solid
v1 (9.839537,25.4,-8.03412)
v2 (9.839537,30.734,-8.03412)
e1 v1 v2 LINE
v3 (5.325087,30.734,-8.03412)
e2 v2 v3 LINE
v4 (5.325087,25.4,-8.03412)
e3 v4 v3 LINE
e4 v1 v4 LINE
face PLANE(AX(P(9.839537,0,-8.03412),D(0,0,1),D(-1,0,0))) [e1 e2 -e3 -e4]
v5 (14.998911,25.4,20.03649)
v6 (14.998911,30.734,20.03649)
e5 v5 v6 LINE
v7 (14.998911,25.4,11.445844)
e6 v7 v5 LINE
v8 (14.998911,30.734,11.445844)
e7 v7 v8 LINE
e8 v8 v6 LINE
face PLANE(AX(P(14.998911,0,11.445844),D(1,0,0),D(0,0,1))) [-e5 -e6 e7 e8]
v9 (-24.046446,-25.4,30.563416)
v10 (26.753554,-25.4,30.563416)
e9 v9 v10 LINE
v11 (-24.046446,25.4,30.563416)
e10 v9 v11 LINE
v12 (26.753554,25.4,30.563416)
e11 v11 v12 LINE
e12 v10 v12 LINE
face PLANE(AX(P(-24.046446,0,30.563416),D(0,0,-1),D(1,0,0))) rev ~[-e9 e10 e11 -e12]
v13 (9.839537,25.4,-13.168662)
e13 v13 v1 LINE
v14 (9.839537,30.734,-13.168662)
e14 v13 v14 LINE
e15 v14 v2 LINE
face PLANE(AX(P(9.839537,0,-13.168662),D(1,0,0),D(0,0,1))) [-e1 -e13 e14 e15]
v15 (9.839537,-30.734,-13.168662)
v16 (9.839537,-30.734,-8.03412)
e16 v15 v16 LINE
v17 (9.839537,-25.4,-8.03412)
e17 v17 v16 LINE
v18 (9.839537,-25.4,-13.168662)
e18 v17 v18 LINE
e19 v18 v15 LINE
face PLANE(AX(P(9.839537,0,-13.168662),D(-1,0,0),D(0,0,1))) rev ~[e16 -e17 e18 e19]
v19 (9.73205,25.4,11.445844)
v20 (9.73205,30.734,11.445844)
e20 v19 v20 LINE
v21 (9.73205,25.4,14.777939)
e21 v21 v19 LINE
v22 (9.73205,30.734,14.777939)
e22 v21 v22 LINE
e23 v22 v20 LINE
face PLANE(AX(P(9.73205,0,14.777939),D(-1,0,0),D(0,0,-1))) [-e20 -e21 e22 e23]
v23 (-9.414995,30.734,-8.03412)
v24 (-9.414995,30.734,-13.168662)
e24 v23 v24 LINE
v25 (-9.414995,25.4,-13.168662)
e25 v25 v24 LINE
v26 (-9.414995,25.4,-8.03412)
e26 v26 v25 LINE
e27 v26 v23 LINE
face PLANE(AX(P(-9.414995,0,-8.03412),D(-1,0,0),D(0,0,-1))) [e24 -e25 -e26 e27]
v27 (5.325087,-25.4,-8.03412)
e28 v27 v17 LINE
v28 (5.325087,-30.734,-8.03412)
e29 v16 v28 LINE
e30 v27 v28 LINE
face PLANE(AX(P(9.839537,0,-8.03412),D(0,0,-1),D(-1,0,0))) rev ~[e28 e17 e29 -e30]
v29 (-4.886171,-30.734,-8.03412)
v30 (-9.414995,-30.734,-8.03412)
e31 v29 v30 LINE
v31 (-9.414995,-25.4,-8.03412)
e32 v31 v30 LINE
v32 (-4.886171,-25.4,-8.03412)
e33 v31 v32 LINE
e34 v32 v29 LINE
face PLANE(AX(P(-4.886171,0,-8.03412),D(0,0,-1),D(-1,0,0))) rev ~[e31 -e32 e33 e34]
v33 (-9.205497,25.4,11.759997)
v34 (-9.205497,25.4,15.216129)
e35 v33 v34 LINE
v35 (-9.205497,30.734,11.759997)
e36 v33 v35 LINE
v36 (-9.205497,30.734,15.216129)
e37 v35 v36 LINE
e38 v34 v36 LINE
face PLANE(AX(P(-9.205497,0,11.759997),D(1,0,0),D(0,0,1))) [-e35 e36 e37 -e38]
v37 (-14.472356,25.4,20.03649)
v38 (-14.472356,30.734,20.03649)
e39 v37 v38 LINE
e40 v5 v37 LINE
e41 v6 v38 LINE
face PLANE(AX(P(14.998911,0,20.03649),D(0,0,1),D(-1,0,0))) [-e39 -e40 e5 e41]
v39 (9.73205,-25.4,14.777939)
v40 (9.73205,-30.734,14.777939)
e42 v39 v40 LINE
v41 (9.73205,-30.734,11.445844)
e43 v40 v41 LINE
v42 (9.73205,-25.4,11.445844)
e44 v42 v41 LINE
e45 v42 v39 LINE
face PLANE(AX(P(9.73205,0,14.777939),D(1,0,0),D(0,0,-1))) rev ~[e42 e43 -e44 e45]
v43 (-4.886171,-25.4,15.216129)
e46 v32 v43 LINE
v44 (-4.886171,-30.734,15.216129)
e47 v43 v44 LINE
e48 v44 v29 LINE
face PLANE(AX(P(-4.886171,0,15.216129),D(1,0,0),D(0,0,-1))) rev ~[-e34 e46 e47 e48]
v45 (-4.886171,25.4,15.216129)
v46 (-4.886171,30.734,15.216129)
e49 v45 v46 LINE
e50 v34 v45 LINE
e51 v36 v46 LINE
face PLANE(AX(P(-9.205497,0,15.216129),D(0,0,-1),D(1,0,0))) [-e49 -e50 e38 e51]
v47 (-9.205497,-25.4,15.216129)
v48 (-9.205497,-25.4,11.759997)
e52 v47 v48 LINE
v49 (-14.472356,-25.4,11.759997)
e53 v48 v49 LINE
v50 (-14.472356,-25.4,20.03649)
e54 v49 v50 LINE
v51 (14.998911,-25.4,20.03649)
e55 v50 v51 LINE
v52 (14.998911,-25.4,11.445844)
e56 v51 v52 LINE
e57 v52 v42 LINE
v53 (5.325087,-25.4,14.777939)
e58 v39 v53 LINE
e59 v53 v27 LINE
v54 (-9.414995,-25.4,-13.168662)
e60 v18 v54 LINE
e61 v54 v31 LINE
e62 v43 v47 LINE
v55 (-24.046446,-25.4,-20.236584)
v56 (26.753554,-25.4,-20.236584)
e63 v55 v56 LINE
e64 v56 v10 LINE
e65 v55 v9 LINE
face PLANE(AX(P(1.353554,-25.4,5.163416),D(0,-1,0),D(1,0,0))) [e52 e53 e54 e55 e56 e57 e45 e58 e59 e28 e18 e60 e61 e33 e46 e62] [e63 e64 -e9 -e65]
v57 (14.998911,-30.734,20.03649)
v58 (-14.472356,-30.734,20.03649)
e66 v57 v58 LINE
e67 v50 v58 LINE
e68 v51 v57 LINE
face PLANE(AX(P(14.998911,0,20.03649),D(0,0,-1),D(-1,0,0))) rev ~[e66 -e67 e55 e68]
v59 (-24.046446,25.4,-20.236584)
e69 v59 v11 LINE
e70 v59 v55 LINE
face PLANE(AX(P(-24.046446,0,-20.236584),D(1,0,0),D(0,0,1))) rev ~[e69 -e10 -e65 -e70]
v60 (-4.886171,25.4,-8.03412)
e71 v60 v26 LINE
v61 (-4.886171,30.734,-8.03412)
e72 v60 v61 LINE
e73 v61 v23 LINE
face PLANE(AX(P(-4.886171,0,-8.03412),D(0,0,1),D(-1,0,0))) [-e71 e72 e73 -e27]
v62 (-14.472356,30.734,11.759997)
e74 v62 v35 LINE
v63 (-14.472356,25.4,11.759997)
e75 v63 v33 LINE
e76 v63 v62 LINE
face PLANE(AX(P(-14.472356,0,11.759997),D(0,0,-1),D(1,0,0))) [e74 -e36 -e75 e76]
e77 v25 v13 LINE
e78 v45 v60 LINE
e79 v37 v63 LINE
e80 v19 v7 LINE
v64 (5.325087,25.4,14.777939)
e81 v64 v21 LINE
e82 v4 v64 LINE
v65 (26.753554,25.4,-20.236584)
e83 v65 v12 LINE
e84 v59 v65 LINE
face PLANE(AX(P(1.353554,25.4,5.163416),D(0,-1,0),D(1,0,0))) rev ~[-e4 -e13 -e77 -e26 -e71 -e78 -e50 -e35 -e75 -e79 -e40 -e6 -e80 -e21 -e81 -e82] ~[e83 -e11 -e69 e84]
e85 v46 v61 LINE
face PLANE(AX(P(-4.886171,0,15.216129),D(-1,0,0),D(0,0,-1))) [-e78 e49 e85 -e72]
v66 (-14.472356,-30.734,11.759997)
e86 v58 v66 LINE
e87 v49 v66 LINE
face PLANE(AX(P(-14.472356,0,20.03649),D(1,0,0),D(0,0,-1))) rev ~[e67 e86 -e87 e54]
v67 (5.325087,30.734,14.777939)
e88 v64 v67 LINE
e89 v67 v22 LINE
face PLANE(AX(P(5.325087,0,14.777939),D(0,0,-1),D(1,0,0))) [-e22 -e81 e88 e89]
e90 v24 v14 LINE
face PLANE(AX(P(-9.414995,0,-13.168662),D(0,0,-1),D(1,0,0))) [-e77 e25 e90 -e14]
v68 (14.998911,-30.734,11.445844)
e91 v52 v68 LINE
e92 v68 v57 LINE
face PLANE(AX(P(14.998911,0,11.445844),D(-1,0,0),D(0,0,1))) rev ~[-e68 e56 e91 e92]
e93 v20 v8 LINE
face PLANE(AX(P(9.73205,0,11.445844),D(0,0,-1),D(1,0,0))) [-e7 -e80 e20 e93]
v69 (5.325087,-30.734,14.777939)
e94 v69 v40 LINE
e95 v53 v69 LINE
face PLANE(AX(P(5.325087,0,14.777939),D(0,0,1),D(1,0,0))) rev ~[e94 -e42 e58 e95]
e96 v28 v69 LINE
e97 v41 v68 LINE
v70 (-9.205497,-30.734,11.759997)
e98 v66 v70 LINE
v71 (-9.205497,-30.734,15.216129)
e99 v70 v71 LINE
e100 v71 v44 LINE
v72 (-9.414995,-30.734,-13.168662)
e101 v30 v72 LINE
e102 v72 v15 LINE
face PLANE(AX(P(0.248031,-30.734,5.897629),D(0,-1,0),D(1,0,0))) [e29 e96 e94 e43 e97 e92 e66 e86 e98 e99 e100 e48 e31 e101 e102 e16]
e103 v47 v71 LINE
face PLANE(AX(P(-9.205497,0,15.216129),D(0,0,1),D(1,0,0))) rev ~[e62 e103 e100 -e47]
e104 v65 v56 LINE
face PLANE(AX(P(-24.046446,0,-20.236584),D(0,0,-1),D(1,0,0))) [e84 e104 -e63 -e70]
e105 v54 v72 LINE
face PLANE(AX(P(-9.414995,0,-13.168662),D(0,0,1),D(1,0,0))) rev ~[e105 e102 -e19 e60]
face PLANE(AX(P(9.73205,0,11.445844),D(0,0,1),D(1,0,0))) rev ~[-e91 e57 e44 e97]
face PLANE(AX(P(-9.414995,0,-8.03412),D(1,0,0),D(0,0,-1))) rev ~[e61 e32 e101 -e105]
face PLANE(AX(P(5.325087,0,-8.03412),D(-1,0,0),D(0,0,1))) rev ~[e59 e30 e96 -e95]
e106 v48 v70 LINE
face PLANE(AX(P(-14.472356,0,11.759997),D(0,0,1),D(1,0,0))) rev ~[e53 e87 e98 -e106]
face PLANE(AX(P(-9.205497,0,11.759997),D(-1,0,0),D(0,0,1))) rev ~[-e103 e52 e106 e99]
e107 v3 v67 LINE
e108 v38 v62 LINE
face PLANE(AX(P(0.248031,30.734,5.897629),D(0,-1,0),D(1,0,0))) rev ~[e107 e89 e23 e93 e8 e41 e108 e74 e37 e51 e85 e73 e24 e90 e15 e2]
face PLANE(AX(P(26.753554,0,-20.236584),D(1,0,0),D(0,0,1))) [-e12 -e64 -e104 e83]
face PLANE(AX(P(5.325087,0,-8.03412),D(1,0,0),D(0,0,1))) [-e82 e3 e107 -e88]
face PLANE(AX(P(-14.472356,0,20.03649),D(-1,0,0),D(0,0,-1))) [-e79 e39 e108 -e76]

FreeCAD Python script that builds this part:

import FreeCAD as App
import Part
import Sketcher
Q = App.Units.Quantity


def add_polygon(sketch, points):
    """Adds a closed chain of lines whose ends are joined by coincident constraints."""
    first, n = sketch.GeometryCount, len(points)
    for a, b in zip(points, points[1:] + points[:1]):
        sketch.addGeometry(Part.LineSegment(App.Vector(*a, 0), App.Vector(*b, 0)), False)
    for i in range(n):
        sketch.addConstraint(Sketcher.Constraint("Coincident", first + i, 2, first + (i + 1) % n, 1))

doc = App.newDocument("Part")
body = doc.addObject("PartDesign::Body", "Body")

# Sketch on XZ plane
sketch1 = body.newObject("Sketcher::SketchObject", "Sketch")
sketch1.AttachmentSupport = (doc.getObject("XZ_Plane"), [""])
sketch1.MapMode = "FlatFace"
add_polygon(sketch1, [(-24, 31), (-24, -20), (27, -20), (27, 31)])  # lines 0-3
sketch1.addConstraint(Sketcher.Constraint("Vertical", 0))
sketch1.addConstraint(Sketcher.Constraint("Horizontal", 1))
sketch1.addConstraint(Sketcher.Constraint("Vertical", 2))
sketch1.addConstraint(Sketcher.Constraint("Horizontal", 3))
sketch1.addConstraint(Sketcher.Constraint("Equal", 3, 0))
sketch1.addConstraint(Sketcher.Constraint("DistanceX", 1, 1, 1, 2, Q("2 in")))
sketch1.addConstraint(Sketcher.Constraint("DistanceX", 0, 2, -1, 1, 24.046446))
sketch1.addConstraint(Sketcher.Constraint("DistanceY", 0, 2, -1, 1, 20.236584))
pad1 = body.newObject("PartDesign::Pad", "Pad")
pad1.Profile = sketch1
pad1.Length = Q("2 in")
pad1.Midplane = True

# Sketch on XZ plane
sketch2 = body.newObject("Sketcher::SketchObject", "Sketch001")
sketch2.AttachmentSupport = (doc.getObject("XZ_Plane"), [""])
sketch2.MapMode = "FlatFace"
add_polygon(sketch2, [(-9.4, -8), (-9.4, -13.2), (9.8, -13.2), (9.8, -8), (5.3, -8), (5.3, 14.8), (9.7, 14.8), (9.7, 11.4), (15, 11.4), (15, 20), (-14.5, 20), (-14.5, 11.8), (-9.2, 11.8), (-9.2, 15.2), (-4.9, 15.2), (-4.9, -8)])  # lines 0-15
sketch2.addConstraint(Sketcher.Constraint("Vertical", 0))
sketch2.addConstraint(Sketcher.Constraint("Horizontal", 1))
sketch2.addConstraint(Sketcher.Constraint("Vertical", 2))
sketch2.addConstraint(Sketcher.Constraint("Horizontal", 3))
sketch2.addConstraint(Sketcher.Constraint("Vertical", 4))
sketch2.addConstraint(Sketcher.Constraint("Horizontal", 5))
sketch2.addConstraint(Sketcher.Constraint("Vertical", 6))
sketch2.addConstraint(Sketcher.Constraint("Horizontal", 7))
sketch2.addConstraint(Sketcher.Constraint("Vertical", 8))
sketch2.addConstraint(Sketcher.Constraint("Horizontal", 9))
sketch2.addConstraint(Sketcher.Constraint("Vertical", 10))
sketch2.addConstraint(Sketcher.Constraint("Horizontal", 11))
sketch2.addConstraint(Sketcher.Constraint("Vertical", 12))
sketch2.addConstraint(Sketcher.Constraint("Horizontal", 13))
sketch2.addConstraint(Sketcher.Constraint("Vertical", 14))
sketch2.addConstraint(Sketcher.Constraint("Horizontal", 15))
sketch2.addConstraint(Sketcher.Constraint("Horizontal", 3, 2, 14, 2))
sketch2.addConstraint(Sketcher.Constraint("DistanceX", 15, 2, 15, 1, Q("0.1783002 in")))
sketch2.addConstraint(Sketcher.Constraint("DistanceX", 2, 2, 7, 2, Q("0.203125 in")))
sketch2.addConstraint(Sketcher.Constraint("DistanceX", 1, 1, 1, 2, 19.254532))
sketch2.addConstraint(Sketcher.Constraint("DistanceX", 3, 2, 3, 1, 4.51445))
sketch2.addConstraint(Sketcher.Constraint("DistanceX", 7, 1, 7, 2, 5.266861))
sketch2.addConstraint(Sketcher.Constraint("DistanceX", 11, 1, 11, 2, 5.266859))
sketch2.addConstraint(Sketcher.Constraint("DistanceY", 0, 2, 0, 1, 5.134542))
sketch2.addConstraint(Sketcher.Constraint("DistanceY", 4, 1, 4, 2, 22.812059))
sketch2.addConstraint(Sketcher.Constraint("DistanceY", 14, 2, 14, 1, 23.250249))
sketch2.addConstraint(Sketcher.Constraint("DistanceX", 9, 2, 9, 1, 29.471267))
sketch2.addConstraint(Sketcher.Constraint("DistanceY", 6, 2, 6, 1, 3.332095))
sketch2.addConstraint(Sketcher.Constraint("DistanceY", 8, 1, 8, 2, 8.590646))
sketch2.addConstraint(Sketcher.Constraint("DistanceY", 10, 2, 10, 1, 8.276493))
sketch2.addConstraint(Sketcher.Constraint("DistanceY", 2, 2, -1, 1, 8.03412))
sketch2.addConstraint(Sketcher.Constraint("DistanceX", -1, 1, 5, 2, 9.73205))
pad2 = body.newObject("PartDesign::Pad", "Pad001")
pad2.Profile = sketch2
pad2.Type = "TwoLengths"
pad2.Length = Q("1.21 in")
pad2.Length2 = Q("1.21 in")

doc.recompute()
